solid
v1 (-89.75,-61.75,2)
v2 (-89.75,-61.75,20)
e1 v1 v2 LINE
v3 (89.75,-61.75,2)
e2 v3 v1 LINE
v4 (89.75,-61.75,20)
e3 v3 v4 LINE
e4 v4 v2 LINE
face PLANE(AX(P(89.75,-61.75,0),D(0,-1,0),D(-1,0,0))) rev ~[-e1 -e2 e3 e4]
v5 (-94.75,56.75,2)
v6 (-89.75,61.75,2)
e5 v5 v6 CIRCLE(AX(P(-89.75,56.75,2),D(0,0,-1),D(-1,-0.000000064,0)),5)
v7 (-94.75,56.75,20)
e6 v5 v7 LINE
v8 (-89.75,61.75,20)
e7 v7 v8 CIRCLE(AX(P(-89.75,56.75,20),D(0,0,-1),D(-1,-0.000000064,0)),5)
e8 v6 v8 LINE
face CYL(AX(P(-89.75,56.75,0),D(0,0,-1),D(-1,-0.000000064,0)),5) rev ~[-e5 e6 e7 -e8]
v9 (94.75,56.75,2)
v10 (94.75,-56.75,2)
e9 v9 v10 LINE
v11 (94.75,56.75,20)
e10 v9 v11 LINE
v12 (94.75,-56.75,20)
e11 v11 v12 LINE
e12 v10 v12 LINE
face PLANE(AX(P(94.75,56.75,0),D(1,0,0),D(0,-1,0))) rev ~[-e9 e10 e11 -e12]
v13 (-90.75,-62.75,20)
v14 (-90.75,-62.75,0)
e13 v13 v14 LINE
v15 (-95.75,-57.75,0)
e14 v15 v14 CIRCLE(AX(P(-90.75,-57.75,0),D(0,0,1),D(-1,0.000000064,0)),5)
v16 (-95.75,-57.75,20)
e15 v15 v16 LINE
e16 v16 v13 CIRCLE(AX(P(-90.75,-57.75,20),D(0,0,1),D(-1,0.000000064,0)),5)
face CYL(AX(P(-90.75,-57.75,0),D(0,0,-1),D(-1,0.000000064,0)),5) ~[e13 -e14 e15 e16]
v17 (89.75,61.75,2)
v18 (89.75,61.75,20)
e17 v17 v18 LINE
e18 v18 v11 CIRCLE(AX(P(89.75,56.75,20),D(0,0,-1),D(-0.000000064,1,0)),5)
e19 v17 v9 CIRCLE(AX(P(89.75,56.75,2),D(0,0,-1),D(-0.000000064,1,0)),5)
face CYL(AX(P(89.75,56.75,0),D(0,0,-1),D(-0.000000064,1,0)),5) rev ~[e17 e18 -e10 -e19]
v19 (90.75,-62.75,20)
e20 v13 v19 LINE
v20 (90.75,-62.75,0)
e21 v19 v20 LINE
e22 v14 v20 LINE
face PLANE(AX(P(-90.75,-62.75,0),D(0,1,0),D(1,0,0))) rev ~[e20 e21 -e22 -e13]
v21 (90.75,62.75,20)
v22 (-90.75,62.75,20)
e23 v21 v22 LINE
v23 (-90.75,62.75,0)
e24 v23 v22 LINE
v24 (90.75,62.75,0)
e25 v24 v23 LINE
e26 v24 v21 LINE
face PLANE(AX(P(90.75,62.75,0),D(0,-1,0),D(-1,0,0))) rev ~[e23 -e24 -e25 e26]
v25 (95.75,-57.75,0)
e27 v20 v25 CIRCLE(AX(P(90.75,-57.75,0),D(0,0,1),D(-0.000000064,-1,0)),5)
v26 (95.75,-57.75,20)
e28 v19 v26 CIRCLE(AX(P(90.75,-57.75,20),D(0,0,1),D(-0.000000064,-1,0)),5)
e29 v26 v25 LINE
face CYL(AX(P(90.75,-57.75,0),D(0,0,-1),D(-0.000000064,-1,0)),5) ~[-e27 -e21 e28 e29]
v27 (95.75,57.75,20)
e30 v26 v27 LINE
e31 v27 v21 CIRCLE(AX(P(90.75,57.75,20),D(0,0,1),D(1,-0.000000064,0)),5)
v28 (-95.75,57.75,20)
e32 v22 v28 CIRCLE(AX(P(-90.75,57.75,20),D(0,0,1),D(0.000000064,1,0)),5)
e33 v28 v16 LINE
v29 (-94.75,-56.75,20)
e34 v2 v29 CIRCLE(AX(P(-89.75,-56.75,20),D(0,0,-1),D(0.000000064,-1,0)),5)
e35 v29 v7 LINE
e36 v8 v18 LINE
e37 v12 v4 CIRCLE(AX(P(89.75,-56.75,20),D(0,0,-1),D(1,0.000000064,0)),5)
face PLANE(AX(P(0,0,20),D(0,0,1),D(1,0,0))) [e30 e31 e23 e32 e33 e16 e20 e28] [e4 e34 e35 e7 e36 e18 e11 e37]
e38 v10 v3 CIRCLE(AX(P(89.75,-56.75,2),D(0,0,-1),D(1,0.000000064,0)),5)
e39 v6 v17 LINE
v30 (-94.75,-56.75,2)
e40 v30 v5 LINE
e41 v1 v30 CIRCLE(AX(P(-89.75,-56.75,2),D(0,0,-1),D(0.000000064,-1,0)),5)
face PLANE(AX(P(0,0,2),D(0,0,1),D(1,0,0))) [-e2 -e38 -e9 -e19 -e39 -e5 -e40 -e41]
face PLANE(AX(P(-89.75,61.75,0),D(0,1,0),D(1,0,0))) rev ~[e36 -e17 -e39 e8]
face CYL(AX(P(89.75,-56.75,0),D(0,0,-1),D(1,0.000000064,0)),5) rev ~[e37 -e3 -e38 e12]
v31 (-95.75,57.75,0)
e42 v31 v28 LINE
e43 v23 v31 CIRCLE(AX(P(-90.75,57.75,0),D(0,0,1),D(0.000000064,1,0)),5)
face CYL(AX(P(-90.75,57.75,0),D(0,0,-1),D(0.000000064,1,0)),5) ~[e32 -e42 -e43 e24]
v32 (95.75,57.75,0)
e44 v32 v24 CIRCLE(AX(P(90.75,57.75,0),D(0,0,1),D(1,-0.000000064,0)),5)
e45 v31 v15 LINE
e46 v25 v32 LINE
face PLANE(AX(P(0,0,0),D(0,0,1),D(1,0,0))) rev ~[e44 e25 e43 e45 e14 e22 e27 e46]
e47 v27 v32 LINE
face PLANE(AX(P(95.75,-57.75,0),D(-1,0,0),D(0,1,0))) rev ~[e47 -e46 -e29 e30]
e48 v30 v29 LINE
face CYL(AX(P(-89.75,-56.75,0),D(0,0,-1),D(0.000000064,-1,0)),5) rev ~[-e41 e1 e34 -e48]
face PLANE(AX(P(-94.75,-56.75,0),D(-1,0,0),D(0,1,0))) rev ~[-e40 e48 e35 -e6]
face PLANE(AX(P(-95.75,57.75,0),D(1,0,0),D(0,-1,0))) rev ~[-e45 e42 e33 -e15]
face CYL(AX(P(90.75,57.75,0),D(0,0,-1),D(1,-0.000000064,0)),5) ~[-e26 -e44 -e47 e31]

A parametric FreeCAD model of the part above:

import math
import FreeCAD as App
import Part
import Sketcher
from FreeCAD import Vector

doc = App.newDocument("Part")
body = doc.addObject("PartDesign::Body", "Body")

# Sketch on XY plane
sketch1 = body.newObject("Sketcher::SketchObject", "Sketch")
sketch1.AttachmentSupport = (doc.getObject("XY_Plane"), [""])
sketch1.MapMode = "FlatFace"
sketch1.addGeometry(Part.ArcOfCircle(Part.Circle(Vector(90.8, 57.8, 0), Vector(0, 0, 1), 5), math.radians(0), math.radians(90)), False)
sketch1.addGeometry(Part.LineSegment(Vector(90.8, 62.8, 0), Vector(-90.8, 62.8, 0)), False)
sketch1.addGeometry(Part.ArcOfCircle(Part.Circle(Vector(-90.8, 57.8, 0), Vector(0, 0, 1), 5), math.radians(90), math.radians(180)), False)
sketch1.addGeometry(Part.LineSegment(Vector(-95.8, 57.8, 0), Vector(-95.8, -57.8, 0)), False)
sketch1.addGeometry(Part.ArcOfCircle(Part.Circle(Vector(-90.8, -57.8, 0), Vector(0, 0, 1), 5), math.radians(180), math.radians(270)), False)
sketch1.addGeometry(Part.LineSegment(Vector(-90.8, -62.8, 0), Vector(90.8, -62.8, 0)), False)
sketch1.addGeometry(Part.ArcOfCircle(Part.Circle(Vector(90.8, -57.8, 0), Vector(0, 0, 1), 5), math.radians(-90), math.radians(0)), False)
sketch1.addGeometry(Part.LineSegment(Vector(95.8, -57.8, 0), Vector(95.8, 57.8, 0)), False)
sketch1.addGeometry(Part.ArcOfCircle(Part.Circle(Vector(-89.8, 56.8, 0), Vector(0, 0, 1), 5), math.radians(90), math.radians(180)), False)
sketch1.addGeometry(Part.LineSegment(Vector(-89.8, 61.8, 0), Vector(89.8, 61.8, 0)), False)
sketch1.addGeometry(Part.ArcOfCircle(Part.Circle(Vector(89.8, 56.8, 0), Vector(0, 0, 1), 5), math.radians(0), math.radians(90)), False)
sketch1.addGeometry(Part.LineSegment(Vector(94.8, 56.8, 0), Vector(94.8, -56.8, 0)), False)
sketch1.addGeometry(Part.ArcOfCircle(Part.Circle(Vector(89.8, -56.8, 0), Vector(0, 0, 1), 5), math.radians(-90), math.radians(0)), False)
sketch1.addGeometry(Part.LineSegment(Vector(89.8, -61.8, 0), Vector(-89.8, -61.8, 0)), False)
sketch1.addGeometry(Part.ArcOfCircle(Part.Circle(Vector(-89.8, -56.8, 0), Vector(0, 0, 1), 5), math.radians(180), math.radians(270)), False)
sketch1.addGeometry(Part.LineSegment(Vector(-94.8, -56.8, 0), Vector(-94.8, 56.8, 0)), False)
sketch1.addConstraint(Sketcher.Constraint("Tangent", 0, 2, 1, 1))
sketch1.addConstraint(Sketcher.Constraint("Tangent", 1, 2, 2, 1))
sketch1.addConstraint(Sketcher.Constraint("Tangent", 2, 2, 3, 1))
sketch1.addConstraint(Sketcher.Constraint("Tangent", 3, 2, 4, 1))
sketch1.addConstraint(Sketcher.Constraint("Tangent", 4, 2, 5, 1))
sketch1.addConstraint(Sketcher.Constraint("Tangent", 5, 2, 6, 1))
sketch1.addConstraint(Sketcher.Constraint("Tangent", 6, 2, 7, 1))
sketch1.addConstraint(Sketcher.Constraint("Tangent", 7, 2, 0, 1))
sketch1.addConstraint(Sketcher.Constraint("Tangent", 8, 1, 9, 1))
sketch1.addConstraint(Sketcher.Constraint("Tangent", 9, 2, 10, 2))
sketch1.addConstraint(Sketcher.Constraint("Tangent", 10, 1, 11, 1))
sketch1.addConstraint(Sketcher.Constraint("Tangent", 11, 2, 12, 2))
sketch1.addConstraint(Sketcher.Constraint("Tangent", 12, 1, 13, 1))
sketch1.addConstraint(Sketcher.Constraint("Tangent", 13, 2, 14, 2))
sketch1.addConstraint(Sketcher.Constraint("Tangent", 14, 1, 15, 1))
sketch1.addConstraint(Sketcher.Constraint("Tangent", 15, 2, 8, 2))
sketch1.addConstraint(Sketcher.Constraint("Horizontal", 1))
sketch1.addConstraint(Sketcher.Constraint("Vertical", 3))
sketch1.addConstraint(Sketcher.Constraint("Horizontal", 5))
sketch1.addConstraint(Sketcher.Constraint("Vertical", 7))
sketch1.addConstraint(Sketcher.Constraint("Horizontal", 9))
sketch1.addConstraint(Sketcher.Constraint("Vertical", 11))
sketch1.addConstraint(Sketcher.Constraint("Horizontal", 13))
sketch1.addConstraint(Sketcher.Constraint("Vertical", 15))
sketch1.addConstraint(Sketcher.Constraint("Equal", 0, 2))
sketch1.addConstraint(Sketcher.Constraint("Equal", 2, 4))
sketch1.addConstraint(Sketcher.Constraint("Equal", 4, 6))
sketch1.addConstraint(Sketcher.Constraint("Equal", 6, 8))
sketch1.addConstraint(Sketcher.Constraint("Equal", 8, 10))
sketch1.addConstraint(Sketcher.Constraint("Equal", 10, 12))
sketch1.addConstraint(Sketcher.Constraint("Equal", 12, 14))
sketch1.addConstraint(Sketcher.Constraint("Symmetric", 0, 3, 4, 3, -1, 1))
sketch1.addConstraint(Sketcher.Constraint("Symmetric", 8, 3, 12, 3, -1, 1))
sketch1.addConstraint(Sketcher.Constraint("Radius", 0, 5.0))
sketch1.addConstraint(Sketcher.Constraint("DistanceX", 1, 2, 1, 1, 181.5))
sketch1.addConstraint(Sketcher.Constraint("DistanceX", 9, 1, 9, 2, 179.5))
sketch1.addConstraint(Sketcher.Constraint("DistanceY", 3, 2, 3, 1, 115.5))
sketch1.addConstraint(Sketcher.Constraint("DistanceY", 11, 2, 11, 1, 113.5))
pad1 = body.newObject("PartDesign::Pad", "Pad")
pad1.Profile = sketch1
pad1.Length = 20

# Sketch on XY plane
sketch2 = body.newObject("Sketcher::SketchObject", "Sketch001")
sketch2.AttachmentSupport = (doc.getObject("XY_Plane"), [""])
sketch2.MapMode = "FlatFace"
sketch2.addGeometry(Part.ArcOfCircle(Part.Circle(Vector(90.8, 57.8, 0), Vector(0, 0, 1), 5), math.radians(0), math.radians(90)), False)
sketch2.addGeometry(Part.LineSegment(Vector(90.8, 62.8, 0), Vector(-90.8, 62.8, 0)), False)
sketch2.addGeometry(Part.ArcOfCircle(Part.Circle(Vector(-90.8, 57.8, 0), Vector(0, 0, 1), 5), math.radians(90), math.radians(180)), False)
sketch2.addGeometry(Part.LineSegment(Vector(-95.8, 57.8, 0), Vector(-95.8, -57.8, 0)), False)
sketch2.addGeometry(Part.ArcOfCircle(Part.Circle(Vector(-90.8, -57.8, 0), Vector(0, 0, 1), 5), math.radians(180), math.radians(270)), False)
sketch2.addGeometry(Part.LineSegment(Vector(-90.8, -62.8, 0), Vector(90.8, -62.8, 0)), False)
sketch2.addGeometry(Part.ArcOfCircle(Part.Circle(Vector(90.8, -57.8, 0), Vector(0, 0, 1), 5), math.radians(-90), math.radians(0)), False)
sketch2.addGeometry(Part.LineSegment(Vector(95.8, -57.8, 0), Vector(95.8, 57.8, 0)), False)
sketch2.addConstraint(Sketcher.Constraint("Tangent", 0, 2, 1, 1))
sketch2.addConstraint(Sketcher.Constraint("Tangent", 1, 2, 2, 1))
sketch2.addConstraint(Sketcher.Constraint("Tangent", 2, 2, 3, 1))
sketch2.addConstraint(Sketcher.Constraint("Tangent", 3, 2, 4, 1))
sketch2.addConstraint(Sketcher.Constraint("Tangent", 4, 2, 5, 1))
sketch2.addConstraint(Sketcher.Constraint("Tangent", 5, 2, 6, 1))
sketch2.addConstraint(Sketcher.Constraint("Tangent", 6, 2, 7, 1))
sketch2.addConstraint(Sketcher.Constraint("Tangent", 7, 2, 0, 1))
sketch2.addConstraint(Sketcher.Constraint("Horizontal", 1))
sketch2.addConstraint(Sketcher.Constraint("Vertical", 3))
sketch2.addConstraint(Sketcher.Constraint("Horizontal", 5))
sketch2.addConstraint(Sketcher.Constraint("Vertical", 7))
sketch2.addConstraint(Sketcher.Constraint("Equal", 0, 2))
sketch2.addConstraint(Sketcher.Constraint("Equal", 2, 4))
sketch2.addConstraint(Sketcher.Constraint("Equal", 4, 6))
sketch2.addConstraint(Sketcher.Constraint("Symmetric", 0, 3, 4, 3, -1, 1))
sketch2.addConstraint(Sketcher.Constraint("Radius", 0, 5.0))
sketch2.addConstraint(Sketcher.Constraint("DistanceX", 1, 2, 1, 1, 181.5))
sketch2.addConstraint(Sketcher.Constraint("DistanceY", 3, 2, 3, 1, 115.5))
pad2 = body.newObject("PartDesign::Pad", "Pad001")
pad2.Profile = sketch2
pad2.Length = 2

doc.recompute()
